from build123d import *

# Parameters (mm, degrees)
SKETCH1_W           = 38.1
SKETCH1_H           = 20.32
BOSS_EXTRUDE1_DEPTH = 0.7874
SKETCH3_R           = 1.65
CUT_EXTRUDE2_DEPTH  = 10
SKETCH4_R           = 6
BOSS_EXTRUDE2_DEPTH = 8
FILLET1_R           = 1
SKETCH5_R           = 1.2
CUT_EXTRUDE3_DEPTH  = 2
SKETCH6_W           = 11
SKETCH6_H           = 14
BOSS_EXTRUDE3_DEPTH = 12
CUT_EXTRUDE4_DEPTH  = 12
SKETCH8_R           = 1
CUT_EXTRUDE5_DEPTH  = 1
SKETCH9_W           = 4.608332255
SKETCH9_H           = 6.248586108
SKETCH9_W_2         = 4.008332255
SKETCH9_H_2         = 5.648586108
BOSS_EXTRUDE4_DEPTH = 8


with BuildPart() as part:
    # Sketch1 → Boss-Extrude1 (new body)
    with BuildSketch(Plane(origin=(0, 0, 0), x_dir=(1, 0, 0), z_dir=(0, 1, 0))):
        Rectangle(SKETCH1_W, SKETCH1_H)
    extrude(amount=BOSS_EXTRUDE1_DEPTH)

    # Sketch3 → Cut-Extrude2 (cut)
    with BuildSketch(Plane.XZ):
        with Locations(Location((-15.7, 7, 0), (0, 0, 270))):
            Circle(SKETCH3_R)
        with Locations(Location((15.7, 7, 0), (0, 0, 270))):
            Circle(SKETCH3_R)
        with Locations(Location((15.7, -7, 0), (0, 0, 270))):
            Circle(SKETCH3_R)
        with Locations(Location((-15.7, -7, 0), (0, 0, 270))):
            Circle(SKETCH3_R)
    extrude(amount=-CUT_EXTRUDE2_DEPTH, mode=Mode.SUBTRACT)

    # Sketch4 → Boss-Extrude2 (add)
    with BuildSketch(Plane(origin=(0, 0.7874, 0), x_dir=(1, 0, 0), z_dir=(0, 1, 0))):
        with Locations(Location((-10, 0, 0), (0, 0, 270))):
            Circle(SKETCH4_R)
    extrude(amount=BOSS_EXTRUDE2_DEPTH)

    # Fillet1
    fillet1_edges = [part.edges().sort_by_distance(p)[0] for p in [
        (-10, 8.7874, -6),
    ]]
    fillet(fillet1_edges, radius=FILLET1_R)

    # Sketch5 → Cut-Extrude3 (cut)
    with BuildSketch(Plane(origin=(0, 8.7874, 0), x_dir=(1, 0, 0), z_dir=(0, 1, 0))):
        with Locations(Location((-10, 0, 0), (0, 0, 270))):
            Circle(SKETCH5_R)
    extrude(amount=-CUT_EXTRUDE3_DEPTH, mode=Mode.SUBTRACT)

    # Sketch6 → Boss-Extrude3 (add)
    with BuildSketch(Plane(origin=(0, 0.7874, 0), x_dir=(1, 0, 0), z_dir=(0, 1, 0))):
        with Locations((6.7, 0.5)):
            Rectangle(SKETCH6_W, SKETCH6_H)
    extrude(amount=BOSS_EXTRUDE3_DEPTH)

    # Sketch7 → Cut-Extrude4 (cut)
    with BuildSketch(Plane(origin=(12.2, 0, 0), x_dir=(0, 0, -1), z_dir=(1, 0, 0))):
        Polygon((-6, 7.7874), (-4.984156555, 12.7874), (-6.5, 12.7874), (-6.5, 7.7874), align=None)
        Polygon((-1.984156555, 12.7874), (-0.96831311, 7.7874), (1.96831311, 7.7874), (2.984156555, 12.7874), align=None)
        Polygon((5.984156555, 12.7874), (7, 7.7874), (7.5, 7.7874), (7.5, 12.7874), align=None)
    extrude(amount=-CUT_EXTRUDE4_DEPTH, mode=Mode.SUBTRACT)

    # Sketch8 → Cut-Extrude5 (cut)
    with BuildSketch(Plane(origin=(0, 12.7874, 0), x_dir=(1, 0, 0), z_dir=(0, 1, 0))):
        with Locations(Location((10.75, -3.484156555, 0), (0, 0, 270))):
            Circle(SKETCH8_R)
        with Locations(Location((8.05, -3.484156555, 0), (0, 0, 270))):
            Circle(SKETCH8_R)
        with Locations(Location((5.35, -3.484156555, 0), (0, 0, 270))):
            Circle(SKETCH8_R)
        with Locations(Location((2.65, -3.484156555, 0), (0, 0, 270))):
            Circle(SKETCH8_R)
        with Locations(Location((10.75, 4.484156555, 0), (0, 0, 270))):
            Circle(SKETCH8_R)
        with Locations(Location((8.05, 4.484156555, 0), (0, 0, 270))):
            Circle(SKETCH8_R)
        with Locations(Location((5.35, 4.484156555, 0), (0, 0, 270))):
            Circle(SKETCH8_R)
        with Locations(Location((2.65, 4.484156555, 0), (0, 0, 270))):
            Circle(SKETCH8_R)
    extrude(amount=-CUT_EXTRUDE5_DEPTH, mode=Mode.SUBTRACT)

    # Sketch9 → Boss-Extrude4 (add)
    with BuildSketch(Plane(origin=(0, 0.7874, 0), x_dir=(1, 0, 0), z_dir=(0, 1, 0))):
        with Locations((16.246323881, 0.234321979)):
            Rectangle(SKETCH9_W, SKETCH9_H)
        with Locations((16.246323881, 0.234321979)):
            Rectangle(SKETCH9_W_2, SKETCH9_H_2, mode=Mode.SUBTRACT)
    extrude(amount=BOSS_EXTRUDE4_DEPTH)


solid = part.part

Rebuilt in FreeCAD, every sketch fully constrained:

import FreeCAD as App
import Part
import Sketcher


def edges_at(feature, points):
    """Names of the edges that pass closest to the given points."""
    edges = feature.Shape.Edges
    near = lambda p: min(range(len(edges)), key=lambda i: edges[i].distToShape(Part.Vertex(*p))[0])
    return sorted({f"Edge{near(p) + 1}" for p in points})

doc = App.newDocument("Part")
body = doc.addObject("PartDesign::Body", "Body")

# Sketch on XZ plane
sketch1 = doc.addObject("Sketcher::SketchObject", "Sketch")
body.addObject(sketch1)
sketch1.AttachmentSupport = (doc.XZ_Plane, [""])
sketch1.MapMode = "FlatFace"
sketch1.addGeometry(Part.LineSegment(App.Vector(-19, -10, 0), App.Vector(-19, 10, 0)), False)
sketch1.addGeometry(Part.LineSegment(App.Vector(-19, 10, 0), App.Vector(19, 10, 0)), False)
sketch1.addGeometry(Part.LineSegment(App.Vector(19, 10, 0), App.Vector(19, -10, 0)), False)
sketch1.addGeometry(Part.LineSegment(App.Vector(19, -10, 0), App.Vector(-19, -10, 0)), False)
sketch1.addConstraint(Sketcher.Constraint("Coincident", 0, 2, 1, 1))
sketch1.addConstraint(Sketcher.Constraint("Coincident", 1, 2, 2, 1))
sketch1.addConstraint(Sketcher.Constraint("Coincident", 2, 2, 3, 1))
sketch1.addConstraint(Sketcher.Constraint("Coincident", 3, 2, 0, 1))
sketch1.addConstraint(Sketcher.Constraint("Vertical", 0))
sketch1.addConstraint(Sketcher.Constraint("Horizontal", 1))
sketch1.addConstraint(Sketcher.Constraint("Vertical", 2))
sketch1.addConstraint(Sketcher.Constraint("Horizontal", 3))
sketch1.addConstraint(Sketcher.Constraint("Symmetric", 0, 2, 2, 2, -1, 1))
sketch1.addConstraint(Sketcher.Constraint("DistanceX", 1, 1, 1, 2, 38.1))
sketch1.addConstraint(Sketcher.Constraint("DistanceY", 0, 1, 0, 2, 20.32))
pad1 = doc.addObject("PartDesign::Pad", "Pad")
body.addObject(pad1)
pad1.Profile = sketch1
pad1.Length = 0.7874
pad1.Reversed = True

# Sketch on XZ plane
sketch2 = doc.addObject("Sketcher::SketchObject", "Sketch001")
body.addObject(sketch2)
sketch2.AttachmentSupport = (doc.XZ_Plane, [""])
sketch2.MapMode = "FlatFace"
sketch2.addGeometry(Part.Circle(App.Vector(-15.7, 7, 0), App.Vector(0, 0, 1), 1.6), False)
sketch2.addGeometry(Part.Circle(App.Vector(15.7, 7, 0), App.Vector(0, 0, 1), 1.6), False)
sketch2.addGeometry(Part.Circle(App.Vector(15.7, -7, 0), App.Vector(0, 0, 1), 1.6), False)
sketch2.addGeometry(Part.Circle(App.Vector(-15.7, -7, 0), App.Vector(0, 0, 1), 1.6), False)
sketch2.addConstraint(Sketcher.Constraint("Equal", 0, 1))
sketch2.addConstraint(Sketcher.Constraint("Equal", 1, 2))
sketch2.addConstraint(Sketcher.Constraint("Equal", 2, 3))
sketch2.addConstraint(Sketcher.Constraint("Symmetric", 0, 3, 2, 3, -1, 1))
sketch2.addConstraint(Sketcher.Constraint("Symmetric", 1, 3, 3, 3, -1, 1))
sketch2.addConstraint(Sketcher.Constraint("Symmetric", 0, 3, 1, 3, -2))
sketch2.addConstraint(Sketcher.Constraint("Diameter", 0, 3.3))
sketch2.addConstraint(Sketcher.Constraint("DistanceY", -1, 1, 0, 3, 7.0))
sketch2.addConstraint(Sketcher.Constraint("DistanceX", 0, 3, -1, 1, 15.7))
pocket1 = doc.addObject("PartDesign::Pocket", "Pocket")
body.addObject(pocket1)
pocket1.Profile = sketch2
pocket1.Length = 10

# Sketch on XZ plane
sketch3 = doc.addObject("Sketcher::SketchObject", "Sketch002")
body.addObject(sketch3)
sketch3.AttachmentSupport = (doc.XZ_Plane, [""])
sketch3.MapMode = "FlatFace"
sketch3.AttachmentOffset = App.Placement(App.Vector(0, 0, -0.7874), App.Rotation())
sketch3.addGeometry(Part.Circle(App.Vector(-10, 0, 0), App.Vector(0, 0, 1), 6), False)
sketch3.addConstraint(Sketcher.Constraint("PointOnObject", 0, 3, -1))
sketch3.addConstraint(Sketcher.Constraint("Diameter", 0, 12.0))
sketch3.addConstraint(Sketcher.Constraint("DistanceX", 0, 3, -1, 1, 10.0))
pad2 = doc.addObject("PartDesign::Pad", "Pad001")
body.addObject(pad2)
pad2.Profile = sketch3
pad2.Length = 8
pad2.Reversed = True
doc.recompute()

fillet = doc.addObject("PartDesign::Fillet", "Fillet")
body.addObject(fillet)
fillet.Base = (pad2, edges_at(pad2, [(-10, 8.787, -6)]))
fillet.Radius = 1

# Sketch on XZ plane
sketch4 = doc.addObject("Sketcher::SketchObject", "Sketch003")
body.addObject(sketch4)
sketch4.AttachmentSupport = (doc.XZ_Plane, [""])
sketch4.MapMode = "FlatFace"
sketch4.AttachmentOffset = App.Placement(App.Vector(0, 0, -8.7874), App.Rotation())
sketch4.addGeometry(Part.Circle(App.Vector(-10, 0, 0), App.Vector(0, 0, 1), 1.2), False)
sketch4.addConstraint(Sketcher.Constraint("PointOnObject", 0, 3, -1))
sketch4.addConstraint(Sketcher.Constraint("Diameter", 0, 2.4))
sketch4.addConstraint(Sketcher.Constraint("DistanceX", 0, 3, -1, 1, 10.0))
pocket2 = doc.addObject("PartDesign::Pocket", "Pocket001")
body.addObject(pocket2)
pocket2.Profile = sketch4
pocket2.Length = 2
pocket2.Reversed = True

# Sketch on XZ plane
sketch5 = doc.addObject("Sketcher::SketchObject", "Sketch004")
body.addObject(sketch5)
sketch5.AttachmentSupport = (doc.XZ_Plane, [""])
sketch5.MapMode = "FlatFace"
sketch5.AttachmentOffset = App.Placement(App.Vector(0, 0, -0.7874), App.Rotation())
sketch5.addGeometry(Part.LineSegment(App.Vector(1, -8, 0), App.Vector(1, 6, 0)), False)
sketch5.addGeometry(Part.LineSegment(App.Vector(1, 6, 0), App.Vector(12, 6, 0)), False)
sketch5.addGeometry(Part.LineSegment(App.Vector(12, 6, 0), App.Vector(12, -8, 0)), False)
sketch5.addGeometry(Part.LineSegment(App.Vector(12, -8, 0), App.Vector(1, -8, 0)), False)
sketch5.addConstraint(Sketcher.Constraint("Coincident", 0, 2, 1, 1))
sketch5.addConstraint(Sketcher.Constraint("Coincident", 1, 2, 2, 1))
sketch5.addConstraint(Sketcher.Constraint("Coincident", 2, 2, 3, 1))
sketch5.addConstraint(Sketcher.Constraint("Coincident", 3, 2, 0, 1))
sketch5.addConstraint(Sketcher.Constraint("Vertical", 0))
sketch5.addConstraint(Sketcher.Constraint("Horizontal", 1))
sketch5.addConstraint(Sketcher.Constraint("Vertical", 2))
sketch5.addConstraint(Sketcher.Constraint("Horizontal", 3))
sketch5.addConstraint(Sketcher.Constraint("DistanceX", 1, 1, 1, 2, 11.0))
sketch5.addConstraint(Sketcher.Constraint("DistanceY", 0, 1, 0, 2, 14.0))
sketch5.addConstraint(Sketcher.Constraint("DistanceX", -1, 1, 0, 2, 1.2))
sketch5.addConstraint(Sketcher.Constraint("DistanceY", -1, 1, 0, 2, 6.5))
pad3 = doc.addObject("PartDesign::Pad", "Pad002")
body.addObject(pad3)
pad3.Profile = sketch5
pad3.Length = 12
pad3.Reversed = True

# Sketch on YZ plane
sketch6 = doc.addObject("Sketcher::SketchObject", "Sketch005")
body.addObject(sketch6)
sketch6.AttachmentSupport = (doc.YZ_Plane, [""])
sketch6.MapMode = "FlatFace"
sketch6.AttachmentOffset = App.Placement(App.Vector(0, 0, 12.2), App.Rotation())
sketch6.addGeometry(Part.LineSegment(App.Vector(7.8, 6, 0), App.Vector(12.8, 5, 0)), False)
sketch6.addGeometry(Part.LineSegment(App.Vector(12.8, 5, 0), App.Vector(12.8, 6.5, 0)), False)
sketch6.addGeometry(Part.LineSegment(App.Vector(12.8, 6.5, 0), App.Vector(7.8, 6.5, 0)), False)
sketch6.addGeometry(Part.LineSegment(App.Vector(7.8, 6.5, 0), App.Vector(7.8, 6, 0)), False)
sketch6.addGeometry(Part.LineSegment(App.Vector(12.8, 2, 0), App.Vector(7.8, 1, 0)), False)
sketch6.addGeometry(Part.LineSegment(App.Vector(7.8, 1, 0), App.Vector(7.8, -2, 0)), False)
sketch6.addGeometry(Part.LineSegment(App.Vector(7.8, -2, 0), App.Vector(12.8, -3, 0)), False)
sketch6.addGeometry(Part.LineSegment(App.Vector(12.8, -3, 0), App.Vector(12.8, 2, 0)), False)
sketch6.addGeometry(Part.LineSegment(App.Vector(12.8, -6, 0), App.Vector(7.8, -7, 0)), False)
sketch6.addGeometry(Part.LineSegment(App.Vector(7.8, -7, 0), App.Vector(7.8, -7.5, 0)), False)
sketch6.addGeometry(Part.LineSegment(App.Vector(7.8, -7.5, 0), App.Vector(12.8, -7.5, 0)), False)
sketch6.addGeometry(Part.LineSegment(App.Vector(12.8, -7.5, 0), App.Vector(12.8, -6, 0)), False)
sketch6.addConstraint(Sketcher.Constraint("Coincident", 0, 2, 1, 1))
sketch6.addConstraint(Sketcher.Constraint("Coincident", 1, 2, 2, 1))
sketch6.addConstraint(Sketcher.Constraint("Coincident", 2, 2, 3, 1))
sketch6.addConstraint(Sketcher.Constraint("Coincident", 3, 2, 0, 1))
sketch6.addConstraint(Sketcher.Constraint("Coincident", 4, 2, 5, 1))
sketch6.addConstraint(Sketcher.Constraint("Coincident", 5, 2, 6, 1))
sketch6.addConstraint(Sketcher.Constraint("Coincident", 6, 2, 7, 1))
sketch6.addConstraint(Sketcher.Constraint("Coincident", 7, 2, 4, 1))
sketch6.addConstraint(Sketcher.Constraint("Coincident", 8, 2, 9, 1))
sketch6.addConstraint(Sketcher.Constraint("Coincident", 9, 2, 10, 1))
sketch6.addConstraint(Sketcher.Constraint("Coincident", 10, 2, 11, 1))
sketch6.addConstraint(Sketcher.Constraint("Coincident", 11, 2, 8, 1))
sketch6.addConstraint(Sketcher.Constraint("Vertical", 1))
sketch6.addConstraint(Sketcher.Constraint("Horizontal", 2))
sketch6.addConstraint(Sketcher.Constraint("Vertical", 3))
sketch6.addConstraint(Sketcher.Constraint("Vertical", 5))
sketch6.addConstraint(Sketcher.Constraint("Vertical", 7))
sketch6.addConstraint(Sketcher.Constraint("Vertical", 9))
sketch6.addConstraint(Sketcher.Constraint("Horizontal", 10))
sketch6.addConstraint(Sketcher.Constraint("Vertical", 11))
sketch6.addConstraint(Sketcher.Constraint("Parallel", 0, 6))
sketch6.addConstraint(Sketcher.Constraint("Parallel", 4, 8))
sketch6.addConstraint(Sketcher.Constraint("Vertical", 3, 2, 4, 2))
sketch6.addConstraint(Sketcher.Constraint("Vertical", 1, 2, 6, 2))
sketch6.addConstraint(Sketcher.Constraint("Vertical", 5, 2, 8, 2))
sketch6.addConstraint(Sketcher.Constraint("Vertical", 7, 2, 10, 2))
sketch6.addConstraint(Sketcher.Constraint("Equal", 3, 9))
sketch6.addConstraint(Sketcher.Constraint("Equal", 1, 11))
sketch6.addConstraint(Sketcher.Constraint("DistanceX", 2, 2, 2, 1, 5.0))
sketch6.addConstraint(Sketcher.Constraint("DistanceY", 3, 2, 3, 1, 0.5))
sketch6.addConstraint(Sketcher.Constraint("DistanceY", -1, 1, 3, 2, 6.0))
sketch6.addConstraint(Sketcher.Constraint("DistanceY", 8, 2, -1, 1, 7.0))
sketch6.addConstraint(Sketcher.Constraint("DistanceY", 7, 2, 0, 2, 3.0))
sketch6.addConstraint(Sketcher.Constraint("DistanceY", 11, 2, 6, 2, 3.0))
sketch6.addConstraint(Sketcher.Constraint("DistanceX", -1, 1, 0, 2, 12.7874))
sketch6.addConstraint(Sketcher.Constraint("Distance", 0, 5.10215))
pocket3 = doc.addObject("PartDesign::Pocket", "Pocket002")
body.addObject(pocket3)
pocket3.Profile = sketch6
pocket3.Length = 12

# Sketch on XZ plane
sketch7 = doc.addObject("Sketcher::SketchObject", "Sketch006")
body.addObject(sketch7)
sketch7.AttachmentSupport = (doc.XZ_Plane, [""])
sketch7.MapMode = "FlatFace"
sketch7.AttachmentOffset = App.Placement(App.Vector(0, 0, -12.7874), App.Rotation())
sketch7.addGeometry(Part.Circle(App.Vector(10.8, 3.5, 0), App.Vector(0, 0, 1), 1), False)
sketch7.addGeometry(Part.Circle(App.Vector(8.1, 3.5, 0), App.Vector(0, 0, 1), 1), False)
sketch7.addGeometry(Part.Circle(App.Vector(5.3, 3.5, 0), App.Vector(0, 0, 1), 1), False)
sketch7.addGeometry(Part.Circle(App.Vector(2.6, 3.5, 0), App.Vector(0, 0, 1), 1), False)
sketch7.addGeometry(Part.Circle(App.Vector(10.8, -4.5, 0), App.Vector(0, 0, 1), 1), False)
sketch7.addGeometry(Part.Circle(App.Vector(8.1, -4.5, 0), App.Vector(0, 0, 1), 1), False)
sketch7.addGeometry(Part.Circle(App.Vector(5.3, -4.5, 0), App.Vector(0, 0, 1), 1), False)
sketch7.addGeometry(Part.Circle(App.Vector(2.6, -4.5, 0), App.Vector(0, 0, 1), 1), False)
sketch7.addConstraint(Sketcher.Constraint("Equal", 0, 1))
sketch7.addConstraint(Sketcher.Constraint("Equal", 1, 2))
sketch7.addConstraint(Sketcher.Constraint("Equal", 2, 3))
sketch7.addConstraint(Sketcher.Constraint("Equal", 3, 4))
sketch7.addConstraint(Sketcher.Constraint("Equal", 4, 5))
sketch7.addConstraint(Sketcher.Constraint("Equal", 5, 6))
sketch7.addConstraint(Sketcher.Constraint("Equal", 6, 7))
sketch7.addConstraint(Sketcher.Constraint("Horizontal", 0, 3, 1, 3))
sketch7.addConstraint(Sketcher.Constraint("Horizontal", 1, 3, 2, 3))
sketch7.addConstraint(Sketcher.Constraint("Horizontal", 2, 3, 3, 3))
sketch7.addConstraint(Sketcher.Constraint("Horizontal", 4, 3, 5, 3))
sketch7.addConstraint(Sketcher.Constraint("Horizontal", 5, 3, 6, 3))
sketch7.addConstraint(Sketcher.Constraint("Horizontal", 6, 3, 7, 3))
sketch7.addConstraint(Sketcher.Constraint("Vertical", 0, 3, 4, 3))
sketch7.addConstraint(Sketcher.Constraint("Vertical", 1, 3, 5, 3))
sketch7.addConstraint(Sketcher.Constraint("Vertical", 2, 3, 6, 3))
sketch7.addConstraint(Sketcher.Constraint("Vertical", 3, 3, 7, 3))
sketch7.addConstraint(Sketcher.Constraint("Diameter", 0, 2.0))
sketch7.addConstraint(Sketcher.Constraint("DistanceX", 1, 3, 0, 3, 2.7))
sketch7.addConstraint(Sketcher.Constraint("DistanceX", 2, 3, 1, 3, 2.7))
sketch7.addConstraint(Sketcher.Constraint("DistanceX", 3, 3, 2, 3, 2.7))
sketch7.addConstraint(Sketcher.Constraint("DistanceX", -1, 1, 0, 3, 10.75))
sketch7.addConstraint(Sketcher.Constraint("DistanceY", -1, 1, 0, 3, 3.484157))
sketch7.addConstraint(Sketcher.Constraint("DistanceY", 4, 3, -1, 1, 4.484157))
pocket4 = doc.addObject("PartDesign::Pocket", "Pocket003")
body.addObject(pocket4)
pocket4.Profile = sketch7
pocket4.Length = 1
pocket4.Reversed = True

# Sketch on XZ plane
sketch8 = doc.addObject("Sketcher::SketchObject", "Sketch007")
body.addObject(sketch8)
sketch8.AttachmentSupport = (doc.XZ_Plane, [""])
sketch8.MapMode = "FlatFace"
sketch8.AttachmentOffset = App.Placement(App.Vector(0, 0, -0.7874), App.Rotation())
sketch8.addGeometry(Part.LineSegment(App.Vector(13.9, -3.4, 0), App.Vector(13.9, 2.9, 0)), False)
sketch8.addGeometry(Part.LineSegment(App.Vector(13.9, 2.9, 0), App.Vector(18.6, 2.9, 0)), False)
sketch8.addGeometry(Part.LineSegment(App.Vector(18.6, 2.9, 0), App.Vector(18.6, -3.4, 0)), False)
sketch8.addGeometry(Part.LineSegment(App.Vector(18.6, -3.4, 0), App.Vector(13.9, -3.4, 0)), False)
sketch8.addGeometry(Part.LineSegment(App.Vector(18.3, 2.6, 0), App.Vector(14.2, 2.6, 0)), False)
sketch8.addGeometry(Part.LineSegment(App.Vector(14.2, 2.6, 0), App.Vector(14.2, -3.1, 0)), False)
sketch8.addGeometry(Part.LineSegment(App.Vector(14.2, -3.1, 0), App.Vector(18.3, -3.1, 0)), False)
sketch8.addGeometry(Part.LineSegment(App.Vector(18.3, -3.1, 0), App.Vector(18.3, 2.6, 0)), False)
sketch8.addConstraint(Sketcher.Constraint("Coincident", 0, 2, 1, 1))
sketch8.addConstraint(Sketcher.Constraint("Coincident", 1, 2, 2, 1))
sketch8.addConstraint(Sketcher.Constraint("Coincident", 2, 2, 3, 1))
sketch8.addConstraint(Sketcher.Constraint("Coincident", 3, 2, 0, 1))
sketch8.addConstraint(Sketcher.Constraint("Coincident", 4, 2, 5, 1))
sketch8.addConstraint(Sketcher.Constraint("Coincident", 5, 2, 6, 1))
sketch8.addConstraint(Sketcher.Constraint("Coincident", 6, 2, 7, 1))
sketch8.addConstraint(Sketcher.Constraint("Coincident", 7, 2, 4, 1))
sketch8.addConstraint(Sketcher.Constraint("Vertical", 0))
sketch8.addConstraint(Sketcher.Constraint("Horizontal", 1))
sketch8.addConstraint(Sketcher.Constraint("Vertical", 2))
sketch8.addConstraint(Sketcher.Constraint("Horizontal", 3))
sketch8.addConstraint(Sketcher.Constraint("Horizontal", 4))
sketch8.addConstraint(Sketcher.Constraint("Vertical", 5))
sketch8.addConstraint(Sketcher.Constraint("Horizontal", 6))
sketch8.addConstraint(Sketcher.Constraint("Vertical", 7))
sketch8.addConstraint(Sketcher.Constraint("DistanceX", 0, 2, 4, 2, 0.3))
sketch8.addConstraint(Sketcher.Constraint("DistanceY", 4, 2, 0, 2, 0.3))
sketch8.addConstraint(Sketcher.Constraint("DistanceY", 3, 2, 5, 2, 0.3))
sketch8.addConstraint(Sketcher.Constraint("DistanceX", 6, 2, 2, 2, 0.3))
sketch8.addConstraint(Sketcher.Constraint("DistanceX", 1, 1, 1, 2, 4.608332))
sketch8.addConstraint(Sketcher.Constraint("DistanceY", 0, 1, 0, 2, 6.248586))
sketch8.addConstraint(Sketcher.Constraint("DistanceY", -1, 1, 0, 2, 2.889971))
sketch8.addConstraint(Sketcher.Constraint("DistanceX", -1, 1, 1, 2, 18.55049))
pad4 = doc.addObject("PartDesign::Pad", "Pad003")
body.addObject(pad4)
pad4.Profile = sketch8
pad4.Length = 8
pad4.Reversed = True

doc.recompute()
